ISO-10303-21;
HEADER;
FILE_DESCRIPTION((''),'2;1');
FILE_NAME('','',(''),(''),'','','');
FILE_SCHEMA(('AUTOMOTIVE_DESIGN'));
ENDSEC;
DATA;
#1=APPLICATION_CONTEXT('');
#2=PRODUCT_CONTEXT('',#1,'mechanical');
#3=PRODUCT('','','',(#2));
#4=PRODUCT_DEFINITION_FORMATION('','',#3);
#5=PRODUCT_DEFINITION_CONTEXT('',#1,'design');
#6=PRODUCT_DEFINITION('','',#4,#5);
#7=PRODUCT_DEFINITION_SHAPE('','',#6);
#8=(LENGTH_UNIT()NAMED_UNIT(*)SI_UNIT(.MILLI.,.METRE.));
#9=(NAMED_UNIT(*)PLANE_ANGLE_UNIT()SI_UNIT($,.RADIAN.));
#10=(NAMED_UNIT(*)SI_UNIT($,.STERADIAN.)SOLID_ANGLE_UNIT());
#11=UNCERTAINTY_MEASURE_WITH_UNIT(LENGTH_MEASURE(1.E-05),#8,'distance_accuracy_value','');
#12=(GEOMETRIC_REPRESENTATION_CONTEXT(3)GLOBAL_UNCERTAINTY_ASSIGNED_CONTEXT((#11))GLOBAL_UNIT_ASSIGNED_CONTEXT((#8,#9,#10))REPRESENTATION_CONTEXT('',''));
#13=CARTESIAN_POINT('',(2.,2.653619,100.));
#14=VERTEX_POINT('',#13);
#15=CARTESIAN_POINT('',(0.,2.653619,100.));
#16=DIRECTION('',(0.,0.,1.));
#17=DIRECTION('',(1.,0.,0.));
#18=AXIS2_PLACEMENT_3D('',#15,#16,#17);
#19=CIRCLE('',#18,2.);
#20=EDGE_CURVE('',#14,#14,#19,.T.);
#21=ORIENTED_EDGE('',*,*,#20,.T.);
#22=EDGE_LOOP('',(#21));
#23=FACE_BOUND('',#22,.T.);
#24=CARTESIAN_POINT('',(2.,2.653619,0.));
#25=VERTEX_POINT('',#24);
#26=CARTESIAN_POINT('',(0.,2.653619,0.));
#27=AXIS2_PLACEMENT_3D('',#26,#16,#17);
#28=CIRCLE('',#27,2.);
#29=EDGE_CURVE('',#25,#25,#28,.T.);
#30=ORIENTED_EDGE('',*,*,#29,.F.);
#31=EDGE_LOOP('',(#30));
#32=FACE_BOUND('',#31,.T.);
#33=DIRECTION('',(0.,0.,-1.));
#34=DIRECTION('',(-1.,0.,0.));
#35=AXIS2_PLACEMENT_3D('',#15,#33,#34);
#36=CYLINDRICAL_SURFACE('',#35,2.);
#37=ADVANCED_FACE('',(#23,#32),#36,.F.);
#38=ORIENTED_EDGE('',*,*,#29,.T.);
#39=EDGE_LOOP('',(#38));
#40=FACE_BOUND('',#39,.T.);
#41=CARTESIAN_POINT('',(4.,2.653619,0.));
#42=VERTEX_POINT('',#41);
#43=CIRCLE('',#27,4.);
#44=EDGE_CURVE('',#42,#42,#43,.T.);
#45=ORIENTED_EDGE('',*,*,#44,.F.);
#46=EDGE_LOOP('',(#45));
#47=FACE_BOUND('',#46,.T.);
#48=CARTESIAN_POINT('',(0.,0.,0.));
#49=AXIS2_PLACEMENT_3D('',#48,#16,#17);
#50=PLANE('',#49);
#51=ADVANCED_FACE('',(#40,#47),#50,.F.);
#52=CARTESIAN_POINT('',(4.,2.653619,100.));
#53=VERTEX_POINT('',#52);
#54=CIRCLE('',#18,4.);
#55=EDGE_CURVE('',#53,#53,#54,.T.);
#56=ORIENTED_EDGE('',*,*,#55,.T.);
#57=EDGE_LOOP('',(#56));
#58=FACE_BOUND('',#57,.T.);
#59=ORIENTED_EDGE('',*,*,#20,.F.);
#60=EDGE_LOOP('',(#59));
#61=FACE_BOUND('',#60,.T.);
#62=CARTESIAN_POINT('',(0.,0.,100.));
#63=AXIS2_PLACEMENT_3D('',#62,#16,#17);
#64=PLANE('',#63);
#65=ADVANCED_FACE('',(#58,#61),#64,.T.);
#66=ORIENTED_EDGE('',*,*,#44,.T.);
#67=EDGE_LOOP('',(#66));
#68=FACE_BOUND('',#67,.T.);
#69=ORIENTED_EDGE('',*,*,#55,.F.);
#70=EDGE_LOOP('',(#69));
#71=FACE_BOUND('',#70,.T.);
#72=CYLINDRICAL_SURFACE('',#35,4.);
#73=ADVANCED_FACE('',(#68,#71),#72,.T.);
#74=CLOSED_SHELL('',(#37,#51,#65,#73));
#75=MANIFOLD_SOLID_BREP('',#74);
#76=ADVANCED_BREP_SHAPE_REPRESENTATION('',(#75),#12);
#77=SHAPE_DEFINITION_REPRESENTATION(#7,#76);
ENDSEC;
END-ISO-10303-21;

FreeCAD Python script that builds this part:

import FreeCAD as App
import Part
import Sketcher
from FreeCAD import Vector
Q = App.Units.Quantity

doc = App.newDocument("Part")
params = doc.addObject("Spreadsheet::Sheet", "Params")
for row, (alias, value) in enumerate([
    ("sketch1_diameter", "8 mm"),
    ("sketch1_diameter2", "4 mm"),
    ("pad1_length", "100 mm"),
], start=1):
    params.set(f"A{row}", alias)
    params.set(f"B{row}", "=" + value)
    params.setAlias(f"B{row}", alias)

body = doc.addObject("PartDesign::Body", "Body")

sketch1 = body.newObject("Sketcher::SketchObject", "Sketch")
sketch1.AttachmentSupport = (doc.getObject("XY_Plane"), [""])
sketch1.MapMode = "FlatFace"
sketch1.addGeometry(Part.Circle(Vector(0, 2.653619, 0), Vector(0, 0, 1), 4), False)
sketch1.addGeometry(Part.Circle(Vector(0, 2.653619, 0), Vector(0, 0, 1), 2), False)
sketch1.addConstraint(Sketcher.Constraint("Coincident", 1, 3, 0, 3))
sketch1.addConstraint(Sketcher.Constraint("PointOnObject", 0, 3, -2))
sketch1.addConstraint(Sketcher.Constraint("Diameter", 0, Q("8 mm")))
sketch1.addConstraint(Sketcher.Constraint("Diameter", 1, Q("4 mm")))
sketch1.addConstraint(Sketcher.Constraint("DistanceY", -1, 1, 0, 3, Q("2.653619 mm")))
sketch1.setExpression("Constraints[2]", "Params.sketch1_diameter")
sketch1.setExpression("Constraints[3]", "Params.sketch1_diameter2")
pad1 = body.newObject("PartDesign::Pad", "Pad")
pad1.Profile = sketch1
pad1.setExpression("Length", "Params.pad1_length")

doc.recompute()
